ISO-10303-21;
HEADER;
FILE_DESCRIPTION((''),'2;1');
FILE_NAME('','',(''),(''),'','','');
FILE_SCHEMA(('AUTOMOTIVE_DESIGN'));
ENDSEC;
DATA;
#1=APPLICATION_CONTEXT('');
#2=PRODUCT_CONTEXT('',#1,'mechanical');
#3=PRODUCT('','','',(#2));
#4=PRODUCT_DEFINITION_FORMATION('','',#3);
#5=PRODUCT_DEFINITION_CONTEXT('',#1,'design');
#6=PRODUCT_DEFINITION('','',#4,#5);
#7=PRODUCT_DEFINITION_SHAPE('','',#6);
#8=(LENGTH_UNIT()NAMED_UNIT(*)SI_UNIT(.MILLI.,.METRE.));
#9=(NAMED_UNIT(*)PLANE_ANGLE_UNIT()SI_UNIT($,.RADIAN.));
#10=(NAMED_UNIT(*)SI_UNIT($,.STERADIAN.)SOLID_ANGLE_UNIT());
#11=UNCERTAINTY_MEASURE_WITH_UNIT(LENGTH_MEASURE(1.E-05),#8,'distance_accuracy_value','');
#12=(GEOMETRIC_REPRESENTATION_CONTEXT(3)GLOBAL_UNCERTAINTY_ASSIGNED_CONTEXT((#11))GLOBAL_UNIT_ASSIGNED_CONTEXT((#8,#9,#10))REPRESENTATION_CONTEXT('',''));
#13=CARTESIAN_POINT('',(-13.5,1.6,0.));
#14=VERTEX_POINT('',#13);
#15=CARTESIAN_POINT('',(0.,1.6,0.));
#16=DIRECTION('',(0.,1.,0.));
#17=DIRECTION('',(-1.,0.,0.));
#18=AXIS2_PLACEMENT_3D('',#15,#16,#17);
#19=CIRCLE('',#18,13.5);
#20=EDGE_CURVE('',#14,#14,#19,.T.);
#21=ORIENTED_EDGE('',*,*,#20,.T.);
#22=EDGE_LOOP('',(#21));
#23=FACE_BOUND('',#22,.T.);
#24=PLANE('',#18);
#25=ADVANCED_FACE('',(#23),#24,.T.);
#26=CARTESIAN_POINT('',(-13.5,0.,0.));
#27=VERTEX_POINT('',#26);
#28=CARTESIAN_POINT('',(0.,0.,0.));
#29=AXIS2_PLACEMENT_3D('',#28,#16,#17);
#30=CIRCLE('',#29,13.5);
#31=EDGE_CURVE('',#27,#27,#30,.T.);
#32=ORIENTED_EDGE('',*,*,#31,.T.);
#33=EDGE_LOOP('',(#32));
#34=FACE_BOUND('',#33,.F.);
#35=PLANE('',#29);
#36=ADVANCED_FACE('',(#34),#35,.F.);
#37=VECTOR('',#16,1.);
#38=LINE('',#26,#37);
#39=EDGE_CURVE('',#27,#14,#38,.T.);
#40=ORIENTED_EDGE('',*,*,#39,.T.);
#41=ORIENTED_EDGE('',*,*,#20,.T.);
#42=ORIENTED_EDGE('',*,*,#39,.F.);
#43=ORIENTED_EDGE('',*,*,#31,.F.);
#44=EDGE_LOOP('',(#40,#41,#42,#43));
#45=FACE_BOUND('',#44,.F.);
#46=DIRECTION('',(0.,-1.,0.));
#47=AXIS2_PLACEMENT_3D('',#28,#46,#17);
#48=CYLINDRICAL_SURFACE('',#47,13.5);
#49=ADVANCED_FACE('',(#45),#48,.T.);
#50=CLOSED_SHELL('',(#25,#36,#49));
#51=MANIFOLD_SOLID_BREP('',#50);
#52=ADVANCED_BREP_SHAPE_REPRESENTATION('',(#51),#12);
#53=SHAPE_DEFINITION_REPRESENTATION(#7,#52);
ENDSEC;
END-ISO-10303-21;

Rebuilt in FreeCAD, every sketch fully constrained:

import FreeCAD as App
import Part
import Sketcher

V = App.Vector
Q = App.Units.Quantity

doc = App.newDocument("Part")
params = doc.addObject("Spreadsheet::Sheet", "Params")
for row, (alias, value) in enumerate([
    ("sketch1_diameter", "1.063 in"),
    ("pad1_length", "0.0629921 in"),
], start=1):
    params.set(f"A{row}", alias)
    params.set(f"B{row}", "=" + value)
    params.setAlias(f"B{row}", alias)

body = doc.addObject("PartDesign::Body", "Body")

# Sketch on XZ plane
sketch1 = doc.addObject("Sketcher::SketchObject", "Sketch")
body.addObject(sketch1)
sketch1.AttachmentSupport = (doc.XZ_Plane, [""])
sketch1.MapMode = "FlatFace"
sketch1.addGeometry(Part.Circle(V(0, 0, 0), V(0, 0, 1), 14), False)
sketch1.addConstraint(Sketcher.Constraint("Coincident", 0, 3, -1, 1))
sketch1.addConstraint(Sketcher.Constraint("Diameter", 0, Q("1.063 in")))
sketch1.setExpression("Constraints[1]", "Params.sketch1_diameter")
pad1 = doc.addObject("PartDesign::Pad", "Pad")
body.addObject(pad1)
pad1.Profile = sketch1
pad1.setExpression("Length", "Params.pad1_length")
pad1.Reversed = True

doc.recompute()
